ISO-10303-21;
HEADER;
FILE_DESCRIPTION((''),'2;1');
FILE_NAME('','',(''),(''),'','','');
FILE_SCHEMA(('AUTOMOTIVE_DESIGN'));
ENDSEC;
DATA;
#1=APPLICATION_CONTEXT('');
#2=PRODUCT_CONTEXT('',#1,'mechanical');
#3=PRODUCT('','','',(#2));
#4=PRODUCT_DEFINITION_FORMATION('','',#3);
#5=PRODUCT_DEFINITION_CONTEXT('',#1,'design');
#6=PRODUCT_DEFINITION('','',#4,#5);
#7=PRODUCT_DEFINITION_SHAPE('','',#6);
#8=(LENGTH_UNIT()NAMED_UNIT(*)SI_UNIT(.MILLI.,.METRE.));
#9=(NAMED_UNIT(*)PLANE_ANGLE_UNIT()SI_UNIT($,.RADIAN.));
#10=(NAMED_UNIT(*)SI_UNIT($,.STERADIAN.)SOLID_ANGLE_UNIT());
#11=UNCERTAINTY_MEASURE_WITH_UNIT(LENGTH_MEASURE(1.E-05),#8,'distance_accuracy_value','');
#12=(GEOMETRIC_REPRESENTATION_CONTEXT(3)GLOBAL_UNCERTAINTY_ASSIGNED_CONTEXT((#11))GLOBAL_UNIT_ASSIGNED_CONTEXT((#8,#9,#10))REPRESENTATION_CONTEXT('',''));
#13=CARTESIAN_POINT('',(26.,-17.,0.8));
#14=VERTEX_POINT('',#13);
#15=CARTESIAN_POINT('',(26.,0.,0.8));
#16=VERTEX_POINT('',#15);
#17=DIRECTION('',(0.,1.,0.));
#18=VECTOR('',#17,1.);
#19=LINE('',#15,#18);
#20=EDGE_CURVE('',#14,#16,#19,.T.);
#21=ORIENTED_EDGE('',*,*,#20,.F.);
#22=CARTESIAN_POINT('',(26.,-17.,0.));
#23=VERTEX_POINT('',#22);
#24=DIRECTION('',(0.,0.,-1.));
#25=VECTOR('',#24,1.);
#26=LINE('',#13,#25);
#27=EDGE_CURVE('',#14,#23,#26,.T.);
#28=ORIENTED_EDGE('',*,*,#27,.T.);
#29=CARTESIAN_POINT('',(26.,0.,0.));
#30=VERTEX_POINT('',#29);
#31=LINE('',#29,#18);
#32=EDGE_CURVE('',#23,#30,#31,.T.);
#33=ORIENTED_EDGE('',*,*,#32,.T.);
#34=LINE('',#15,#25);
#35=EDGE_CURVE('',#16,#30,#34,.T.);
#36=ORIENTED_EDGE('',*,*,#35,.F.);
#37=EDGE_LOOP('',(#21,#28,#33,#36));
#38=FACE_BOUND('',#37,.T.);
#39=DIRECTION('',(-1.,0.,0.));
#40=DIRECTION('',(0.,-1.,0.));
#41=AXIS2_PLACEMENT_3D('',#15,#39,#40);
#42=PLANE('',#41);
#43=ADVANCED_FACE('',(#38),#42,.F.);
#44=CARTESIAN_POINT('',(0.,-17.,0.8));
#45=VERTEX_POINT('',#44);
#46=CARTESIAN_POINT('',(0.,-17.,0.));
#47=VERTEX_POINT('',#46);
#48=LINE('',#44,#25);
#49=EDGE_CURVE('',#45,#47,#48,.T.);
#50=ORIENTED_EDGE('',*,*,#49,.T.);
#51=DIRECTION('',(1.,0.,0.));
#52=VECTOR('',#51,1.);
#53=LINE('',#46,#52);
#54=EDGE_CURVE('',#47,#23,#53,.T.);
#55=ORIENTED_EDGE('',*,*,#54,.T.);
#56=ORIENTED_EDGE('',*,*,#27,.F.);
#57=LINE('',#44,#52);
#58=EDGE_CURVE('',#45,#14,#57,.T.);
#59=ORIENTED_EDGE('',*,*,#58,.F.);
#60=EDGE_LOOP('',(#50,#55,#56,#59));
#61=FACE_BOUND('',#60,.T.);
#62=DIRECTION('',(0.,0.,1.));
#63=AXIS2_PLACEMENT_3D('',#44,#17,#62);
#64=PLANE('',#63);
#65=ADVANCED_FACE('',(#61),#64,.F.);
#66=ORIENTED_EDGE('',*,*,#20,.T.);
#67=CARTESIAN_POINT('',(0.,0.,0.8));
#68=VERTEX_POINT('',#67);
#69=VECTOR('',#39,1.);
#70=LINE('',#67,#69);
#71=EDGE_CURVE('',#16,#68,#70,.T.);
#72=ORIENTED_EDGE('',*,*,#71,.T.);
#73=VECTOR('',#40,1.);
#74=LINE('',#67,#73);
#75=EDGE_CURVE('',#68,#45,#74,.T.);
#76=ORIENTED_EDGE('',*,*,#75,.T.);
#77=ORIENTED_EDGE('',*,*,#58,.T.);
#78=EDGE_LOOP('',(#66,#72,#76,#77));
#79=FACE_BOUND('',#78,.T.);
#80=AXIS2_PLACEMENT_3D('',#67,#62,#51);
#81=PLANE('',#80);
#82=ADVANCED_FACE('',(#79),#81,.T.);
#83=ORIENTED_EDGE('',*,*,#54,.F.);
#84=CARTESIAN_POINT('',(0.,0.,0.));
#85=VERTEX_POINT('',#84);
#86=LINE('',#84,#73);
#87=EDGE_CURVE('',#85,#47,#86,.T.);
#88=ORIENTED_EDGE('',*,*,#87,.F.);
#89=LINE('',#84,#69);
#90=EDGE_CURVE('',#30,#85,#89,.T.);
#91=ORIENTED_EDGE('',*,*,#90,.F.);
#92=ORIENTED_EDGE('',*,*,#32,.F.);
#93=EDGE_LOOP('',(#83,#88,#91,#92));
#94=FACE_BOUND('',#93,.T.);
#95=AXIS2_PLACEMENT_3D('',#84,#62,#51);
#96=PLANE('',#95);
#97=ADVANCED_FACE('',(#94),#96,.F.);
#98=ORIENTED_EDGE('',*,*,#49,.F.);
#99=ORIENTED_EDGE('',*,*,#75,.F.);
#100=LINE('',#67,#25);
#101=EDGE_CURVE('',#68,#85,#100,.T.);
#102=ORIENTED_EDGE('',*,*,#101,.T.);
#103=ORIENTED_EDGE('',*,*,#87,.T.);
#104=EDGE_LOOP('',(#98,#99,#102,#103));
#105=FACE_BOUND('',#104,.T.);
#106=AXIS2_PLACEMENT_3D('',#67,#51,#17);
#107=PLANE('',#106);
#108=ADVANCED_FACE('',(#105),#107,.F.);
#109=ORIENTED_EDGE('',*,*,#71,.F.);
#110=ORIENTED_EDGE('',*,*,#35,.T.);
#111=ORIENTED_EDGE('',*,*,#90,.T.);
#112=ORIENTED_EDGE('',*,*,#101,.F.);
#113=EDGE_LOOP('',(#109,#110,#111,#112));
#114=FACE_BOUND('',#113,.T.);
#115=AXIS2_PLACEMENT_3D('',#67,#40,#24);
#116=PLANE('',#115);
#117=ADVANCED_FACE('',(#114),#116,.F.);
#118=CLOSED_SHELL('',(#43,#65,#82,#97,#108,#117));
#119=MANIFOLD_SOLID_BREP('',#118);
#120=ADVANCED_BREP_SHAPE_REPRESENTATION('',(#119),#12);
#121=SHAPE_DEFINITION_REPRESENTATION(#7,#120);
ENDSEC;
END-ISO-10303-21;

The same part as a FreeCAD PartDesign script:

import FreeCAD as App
import Part
import Sketcher

V = App.Vector

doc = App.newDocument("Part")
params = doc.addObject("Spreadsheet::Sheet", "Params")
for row, (alias, value) in enumerate([
    ("sketch1_width", "26 mm"),
    ("sketch1_height", "17 mm"),
    ("pad1_length", "0.8 mm"),
], start=1):
    params.set(f"A{row}", alias)
    params.set(f"B{row}", "=" + value)
    params.setAlias(f"B{row}", alias)

body = doc.addObject("PartDesign::Body", "Body")

# Sketch on XY plane
sketch1 = body.newObject("Sketcher::SketchObject", "Sketch")
sketch1.AttachmentSupport = (doc.getObject("XY_Plane"), [""])
sketch1.MapMode = "FlatFace"
sketch1.addGeometry([
    Part.LineSegment(V(0, 0, 0), V(0, -17, 0)),
    Part.LineSegment(V(0, -17, 0), V(26, -17, 0)),
    Part.LineSegment(V(26, -17, 0), V(26, 0, 0)),
    Part.LineSegment(V(26, 0, 0), V(0, 0, 0)),
], False)
sketch1.addConstraint([
    Sketcher.Constraint("Coincident", 0, 2, 1, 1),
    Sketcher.Constraint("Coincident", 1, 2, 2, 1),
    Sketcher.Constraint("Coincident", 2, 2, 3, 1),
    Sketcher.Constraint("Coincident", 3, 2, 0, 1),
    Sketcher.Constraint("Vertical", 0),
    Sketcher.Constraint("Horizontal", 1),
    Sketcher.Constraint("Vertical", 2),
    Sketcher.Constraint("Horizontal", 3),
    Sketcher.Constraint("Coincident", 3, 2, -1, 1),
    Sketcher.Constraint("DistanceX", 1, 1, 1, 2, 26.0),
    Sketcher.Constraint("DistanceY", 0, 2, 0, 1, 17.0),
])
sketch1.setExpression("Constraints[9]", "Params.sketch1_width")
sketch1.setExpression("Constraints[10]", "Params.sketch1_height")
pad1 = body.newObject("PartDesign::Pad", "Pad")
pad1.Profile = sketch1
pad1.setExpression("Length", "Params.pad1_length")

doc.recompute()
